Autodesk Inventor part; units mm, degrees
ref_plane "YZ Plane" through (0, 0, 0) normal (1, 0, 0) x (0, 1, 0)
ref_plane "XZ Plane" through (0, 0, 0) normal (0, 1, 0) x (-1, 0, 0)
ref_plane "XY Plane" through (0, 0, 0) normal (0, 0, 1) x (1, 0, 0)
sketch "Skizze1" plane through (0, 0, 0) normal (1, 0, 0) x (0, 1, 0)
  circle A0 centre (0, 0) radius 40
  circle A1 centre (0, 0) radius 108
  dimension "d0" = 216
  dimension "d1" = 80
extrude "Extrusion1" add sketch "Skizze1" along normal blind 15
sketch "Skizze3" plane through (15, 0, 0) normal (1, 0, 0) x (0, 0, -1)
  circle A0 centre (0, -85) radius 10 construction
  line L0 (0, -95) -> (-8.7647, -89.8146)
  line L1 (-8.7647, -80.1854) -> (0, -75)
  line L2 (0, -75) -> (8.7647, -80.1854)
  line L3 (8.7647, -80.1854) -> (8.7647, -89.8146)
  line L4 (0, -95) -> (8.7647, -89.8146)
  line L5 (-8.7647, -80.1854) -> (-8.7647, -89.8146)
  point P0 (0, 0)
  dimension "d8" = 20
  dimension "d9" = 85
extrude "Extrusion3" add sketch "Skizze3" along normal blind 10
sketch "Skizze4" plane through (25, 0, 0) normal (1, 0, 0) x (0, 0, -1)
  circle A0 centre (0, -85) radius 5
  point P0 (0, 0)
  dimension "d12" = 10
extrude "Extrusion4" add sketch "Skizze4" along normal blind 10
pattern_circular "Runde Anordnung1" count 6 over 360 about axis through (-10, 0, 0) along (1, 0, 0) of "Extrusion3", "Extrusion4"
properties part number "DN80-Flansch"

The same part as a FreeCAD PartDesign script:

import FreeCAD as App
import Part
import Sketcher

V = App.Vector
Q = App.Units.Quantity


def add_polygon(sketch, points):
    """Adds a closed chain of lines whose ends are joined by coincident constraints."""
    first, n = sketch.GeometryCount, len(points)
    for a, b in zip(points, points[1:] + points[:1]):
        sketch.addGeometry(Part.LineSegment(App.Vector(*a, 0), App.Vector(*b, 0)), False)
    for i in range(n):
        sketch.addConstraint(Sketcher.Constraint("Coincident", first + i, 2, first + (i + 1) % n, 1))

doc = App.newDocument("Part")
body = doc.addObject("PartDesign::Body", "Body")

sketch1 = doc.addObject("Sketcher::SketchObject", "Sketch")
body.addObject(sketch1)
sketch1.AttachmentSupport = (doc.YZ_Plane, [""])
sketch1.MapMode = "FlatFace"
sketch1.addGeometry([
    Part.Circle(V(0, 0, 0), V(0, 0, 1), 108),
    Part.Circle(V(0, 0, 0), V(0, 0, 1), 40),
], False)
sketch1.addConstraint([
    Sketcher.Constraint("Coincident", 0, 3, -1, 1),
    Sketcher.Constraint("Coincident", 1, 3, -1, 1),
    Sketcher.Constraint("Diameter", 0, 216.0),
    Sketcher.Constraint("Diameter", 1, 80.0),
])
pad1 = doc.addObject("PartDesign::Pad", "Pad")
body.addObject(pad1)
pad1.Profile = sketch1
pad1.Length = 15

sketch2 = doc.addObject("Sketcher::SketchObject", "Sketch001")
body.addObject(sketch2)
sketch2.AttachmentSupport = (doc.YZ_Plane, [""])
sketch2.MapMode = "FlatFace"
sketch2.AttachmentOffset = App.Placement(V(0, 0, 15), App.Rotation())
add_polygon(sketch2, [(-89.8146, 8.7647), (-95, 0), (-89.8146, -8.7647), (-80.1854, -8.7647), (-75, 0), (-80.1854, 8.7647)])
sketch2.addConstraint([
    Sketcher.Constraint("Horizontal", 2),
    Sketcher.Constraint("Horizontal", 5),
    Sketcher.Constraint("Symmetric", 2, 2, 4, 2, -1),
    Sketcher.Constraint("PointOnObject", 0, 2, -1),
    Sketcher.Constraint("PointOnObject", 3, 2, -1),
    Sketcher.Constraint("Parallel", 0, 3),
    Sketcher.Constraint("Parallel", 1, 4),
    Sketcher.Constraint("DistanceX", 0, 2, 3, 2, 20.0),
    Sketcher.Constraint("DistanceX", 0, 2, -1, 1, 95.0),
    Sketcher.Constraint("Angle", 0, Q("-120.6095 deg")),
    Sketcher.Constraint("DistanceX", 2, 1, 2, 2, 9.6292),
])
pad2 = doc.addObject("PartDesign::Pad", "Pad001")
body.addObject(pad2)
pad2.Profile = sketch2
pad2.Length = 10

sketch3 = doc.addObject("Sketcher::SketchObject", "Sketch002")
body.addObject(sketch3)
sketch3.AttachmentSupport = (doc.YZ_Plane, [""])
sketch3.MapMode = "FlatFace"
sketch3.AttachmentOffset = App.Placement(V(0, 0, 25), App.Rotation())
sketch3.addGeometry(Part.Circle(V(-85, 0, 0), V(0, 0, 1), 5), False)
sketch3.addConstraint([
    Sketcher.Constraint("PointOnObject", 0, 3, -1),
    Sketcher.Constraint("Diameter", 0, 10.0),
    Sketcher.Constraint("DistanceX", 0, 3, -1, 1, 85.0),
])
pad3 = doc.addObject("PartDesign::Pad", "Pad002")
body.addObject(pad3)
pad3.Profile = sketch3
pad3.Length = 10
doc.recompute()

polarpattern = doc.addObject("PartDesign::PolarPattern", "PolarPattern")
body.addObject(polarpattern)
polarpattern.Originals = [pad2, pad3]
polarpattern.Axis = (doc.X_Axis, [""])
polarpattern.Angle = 360
polarpattern.Occurrences = 6
body.Tip = polarpattern

doc.recompute()
